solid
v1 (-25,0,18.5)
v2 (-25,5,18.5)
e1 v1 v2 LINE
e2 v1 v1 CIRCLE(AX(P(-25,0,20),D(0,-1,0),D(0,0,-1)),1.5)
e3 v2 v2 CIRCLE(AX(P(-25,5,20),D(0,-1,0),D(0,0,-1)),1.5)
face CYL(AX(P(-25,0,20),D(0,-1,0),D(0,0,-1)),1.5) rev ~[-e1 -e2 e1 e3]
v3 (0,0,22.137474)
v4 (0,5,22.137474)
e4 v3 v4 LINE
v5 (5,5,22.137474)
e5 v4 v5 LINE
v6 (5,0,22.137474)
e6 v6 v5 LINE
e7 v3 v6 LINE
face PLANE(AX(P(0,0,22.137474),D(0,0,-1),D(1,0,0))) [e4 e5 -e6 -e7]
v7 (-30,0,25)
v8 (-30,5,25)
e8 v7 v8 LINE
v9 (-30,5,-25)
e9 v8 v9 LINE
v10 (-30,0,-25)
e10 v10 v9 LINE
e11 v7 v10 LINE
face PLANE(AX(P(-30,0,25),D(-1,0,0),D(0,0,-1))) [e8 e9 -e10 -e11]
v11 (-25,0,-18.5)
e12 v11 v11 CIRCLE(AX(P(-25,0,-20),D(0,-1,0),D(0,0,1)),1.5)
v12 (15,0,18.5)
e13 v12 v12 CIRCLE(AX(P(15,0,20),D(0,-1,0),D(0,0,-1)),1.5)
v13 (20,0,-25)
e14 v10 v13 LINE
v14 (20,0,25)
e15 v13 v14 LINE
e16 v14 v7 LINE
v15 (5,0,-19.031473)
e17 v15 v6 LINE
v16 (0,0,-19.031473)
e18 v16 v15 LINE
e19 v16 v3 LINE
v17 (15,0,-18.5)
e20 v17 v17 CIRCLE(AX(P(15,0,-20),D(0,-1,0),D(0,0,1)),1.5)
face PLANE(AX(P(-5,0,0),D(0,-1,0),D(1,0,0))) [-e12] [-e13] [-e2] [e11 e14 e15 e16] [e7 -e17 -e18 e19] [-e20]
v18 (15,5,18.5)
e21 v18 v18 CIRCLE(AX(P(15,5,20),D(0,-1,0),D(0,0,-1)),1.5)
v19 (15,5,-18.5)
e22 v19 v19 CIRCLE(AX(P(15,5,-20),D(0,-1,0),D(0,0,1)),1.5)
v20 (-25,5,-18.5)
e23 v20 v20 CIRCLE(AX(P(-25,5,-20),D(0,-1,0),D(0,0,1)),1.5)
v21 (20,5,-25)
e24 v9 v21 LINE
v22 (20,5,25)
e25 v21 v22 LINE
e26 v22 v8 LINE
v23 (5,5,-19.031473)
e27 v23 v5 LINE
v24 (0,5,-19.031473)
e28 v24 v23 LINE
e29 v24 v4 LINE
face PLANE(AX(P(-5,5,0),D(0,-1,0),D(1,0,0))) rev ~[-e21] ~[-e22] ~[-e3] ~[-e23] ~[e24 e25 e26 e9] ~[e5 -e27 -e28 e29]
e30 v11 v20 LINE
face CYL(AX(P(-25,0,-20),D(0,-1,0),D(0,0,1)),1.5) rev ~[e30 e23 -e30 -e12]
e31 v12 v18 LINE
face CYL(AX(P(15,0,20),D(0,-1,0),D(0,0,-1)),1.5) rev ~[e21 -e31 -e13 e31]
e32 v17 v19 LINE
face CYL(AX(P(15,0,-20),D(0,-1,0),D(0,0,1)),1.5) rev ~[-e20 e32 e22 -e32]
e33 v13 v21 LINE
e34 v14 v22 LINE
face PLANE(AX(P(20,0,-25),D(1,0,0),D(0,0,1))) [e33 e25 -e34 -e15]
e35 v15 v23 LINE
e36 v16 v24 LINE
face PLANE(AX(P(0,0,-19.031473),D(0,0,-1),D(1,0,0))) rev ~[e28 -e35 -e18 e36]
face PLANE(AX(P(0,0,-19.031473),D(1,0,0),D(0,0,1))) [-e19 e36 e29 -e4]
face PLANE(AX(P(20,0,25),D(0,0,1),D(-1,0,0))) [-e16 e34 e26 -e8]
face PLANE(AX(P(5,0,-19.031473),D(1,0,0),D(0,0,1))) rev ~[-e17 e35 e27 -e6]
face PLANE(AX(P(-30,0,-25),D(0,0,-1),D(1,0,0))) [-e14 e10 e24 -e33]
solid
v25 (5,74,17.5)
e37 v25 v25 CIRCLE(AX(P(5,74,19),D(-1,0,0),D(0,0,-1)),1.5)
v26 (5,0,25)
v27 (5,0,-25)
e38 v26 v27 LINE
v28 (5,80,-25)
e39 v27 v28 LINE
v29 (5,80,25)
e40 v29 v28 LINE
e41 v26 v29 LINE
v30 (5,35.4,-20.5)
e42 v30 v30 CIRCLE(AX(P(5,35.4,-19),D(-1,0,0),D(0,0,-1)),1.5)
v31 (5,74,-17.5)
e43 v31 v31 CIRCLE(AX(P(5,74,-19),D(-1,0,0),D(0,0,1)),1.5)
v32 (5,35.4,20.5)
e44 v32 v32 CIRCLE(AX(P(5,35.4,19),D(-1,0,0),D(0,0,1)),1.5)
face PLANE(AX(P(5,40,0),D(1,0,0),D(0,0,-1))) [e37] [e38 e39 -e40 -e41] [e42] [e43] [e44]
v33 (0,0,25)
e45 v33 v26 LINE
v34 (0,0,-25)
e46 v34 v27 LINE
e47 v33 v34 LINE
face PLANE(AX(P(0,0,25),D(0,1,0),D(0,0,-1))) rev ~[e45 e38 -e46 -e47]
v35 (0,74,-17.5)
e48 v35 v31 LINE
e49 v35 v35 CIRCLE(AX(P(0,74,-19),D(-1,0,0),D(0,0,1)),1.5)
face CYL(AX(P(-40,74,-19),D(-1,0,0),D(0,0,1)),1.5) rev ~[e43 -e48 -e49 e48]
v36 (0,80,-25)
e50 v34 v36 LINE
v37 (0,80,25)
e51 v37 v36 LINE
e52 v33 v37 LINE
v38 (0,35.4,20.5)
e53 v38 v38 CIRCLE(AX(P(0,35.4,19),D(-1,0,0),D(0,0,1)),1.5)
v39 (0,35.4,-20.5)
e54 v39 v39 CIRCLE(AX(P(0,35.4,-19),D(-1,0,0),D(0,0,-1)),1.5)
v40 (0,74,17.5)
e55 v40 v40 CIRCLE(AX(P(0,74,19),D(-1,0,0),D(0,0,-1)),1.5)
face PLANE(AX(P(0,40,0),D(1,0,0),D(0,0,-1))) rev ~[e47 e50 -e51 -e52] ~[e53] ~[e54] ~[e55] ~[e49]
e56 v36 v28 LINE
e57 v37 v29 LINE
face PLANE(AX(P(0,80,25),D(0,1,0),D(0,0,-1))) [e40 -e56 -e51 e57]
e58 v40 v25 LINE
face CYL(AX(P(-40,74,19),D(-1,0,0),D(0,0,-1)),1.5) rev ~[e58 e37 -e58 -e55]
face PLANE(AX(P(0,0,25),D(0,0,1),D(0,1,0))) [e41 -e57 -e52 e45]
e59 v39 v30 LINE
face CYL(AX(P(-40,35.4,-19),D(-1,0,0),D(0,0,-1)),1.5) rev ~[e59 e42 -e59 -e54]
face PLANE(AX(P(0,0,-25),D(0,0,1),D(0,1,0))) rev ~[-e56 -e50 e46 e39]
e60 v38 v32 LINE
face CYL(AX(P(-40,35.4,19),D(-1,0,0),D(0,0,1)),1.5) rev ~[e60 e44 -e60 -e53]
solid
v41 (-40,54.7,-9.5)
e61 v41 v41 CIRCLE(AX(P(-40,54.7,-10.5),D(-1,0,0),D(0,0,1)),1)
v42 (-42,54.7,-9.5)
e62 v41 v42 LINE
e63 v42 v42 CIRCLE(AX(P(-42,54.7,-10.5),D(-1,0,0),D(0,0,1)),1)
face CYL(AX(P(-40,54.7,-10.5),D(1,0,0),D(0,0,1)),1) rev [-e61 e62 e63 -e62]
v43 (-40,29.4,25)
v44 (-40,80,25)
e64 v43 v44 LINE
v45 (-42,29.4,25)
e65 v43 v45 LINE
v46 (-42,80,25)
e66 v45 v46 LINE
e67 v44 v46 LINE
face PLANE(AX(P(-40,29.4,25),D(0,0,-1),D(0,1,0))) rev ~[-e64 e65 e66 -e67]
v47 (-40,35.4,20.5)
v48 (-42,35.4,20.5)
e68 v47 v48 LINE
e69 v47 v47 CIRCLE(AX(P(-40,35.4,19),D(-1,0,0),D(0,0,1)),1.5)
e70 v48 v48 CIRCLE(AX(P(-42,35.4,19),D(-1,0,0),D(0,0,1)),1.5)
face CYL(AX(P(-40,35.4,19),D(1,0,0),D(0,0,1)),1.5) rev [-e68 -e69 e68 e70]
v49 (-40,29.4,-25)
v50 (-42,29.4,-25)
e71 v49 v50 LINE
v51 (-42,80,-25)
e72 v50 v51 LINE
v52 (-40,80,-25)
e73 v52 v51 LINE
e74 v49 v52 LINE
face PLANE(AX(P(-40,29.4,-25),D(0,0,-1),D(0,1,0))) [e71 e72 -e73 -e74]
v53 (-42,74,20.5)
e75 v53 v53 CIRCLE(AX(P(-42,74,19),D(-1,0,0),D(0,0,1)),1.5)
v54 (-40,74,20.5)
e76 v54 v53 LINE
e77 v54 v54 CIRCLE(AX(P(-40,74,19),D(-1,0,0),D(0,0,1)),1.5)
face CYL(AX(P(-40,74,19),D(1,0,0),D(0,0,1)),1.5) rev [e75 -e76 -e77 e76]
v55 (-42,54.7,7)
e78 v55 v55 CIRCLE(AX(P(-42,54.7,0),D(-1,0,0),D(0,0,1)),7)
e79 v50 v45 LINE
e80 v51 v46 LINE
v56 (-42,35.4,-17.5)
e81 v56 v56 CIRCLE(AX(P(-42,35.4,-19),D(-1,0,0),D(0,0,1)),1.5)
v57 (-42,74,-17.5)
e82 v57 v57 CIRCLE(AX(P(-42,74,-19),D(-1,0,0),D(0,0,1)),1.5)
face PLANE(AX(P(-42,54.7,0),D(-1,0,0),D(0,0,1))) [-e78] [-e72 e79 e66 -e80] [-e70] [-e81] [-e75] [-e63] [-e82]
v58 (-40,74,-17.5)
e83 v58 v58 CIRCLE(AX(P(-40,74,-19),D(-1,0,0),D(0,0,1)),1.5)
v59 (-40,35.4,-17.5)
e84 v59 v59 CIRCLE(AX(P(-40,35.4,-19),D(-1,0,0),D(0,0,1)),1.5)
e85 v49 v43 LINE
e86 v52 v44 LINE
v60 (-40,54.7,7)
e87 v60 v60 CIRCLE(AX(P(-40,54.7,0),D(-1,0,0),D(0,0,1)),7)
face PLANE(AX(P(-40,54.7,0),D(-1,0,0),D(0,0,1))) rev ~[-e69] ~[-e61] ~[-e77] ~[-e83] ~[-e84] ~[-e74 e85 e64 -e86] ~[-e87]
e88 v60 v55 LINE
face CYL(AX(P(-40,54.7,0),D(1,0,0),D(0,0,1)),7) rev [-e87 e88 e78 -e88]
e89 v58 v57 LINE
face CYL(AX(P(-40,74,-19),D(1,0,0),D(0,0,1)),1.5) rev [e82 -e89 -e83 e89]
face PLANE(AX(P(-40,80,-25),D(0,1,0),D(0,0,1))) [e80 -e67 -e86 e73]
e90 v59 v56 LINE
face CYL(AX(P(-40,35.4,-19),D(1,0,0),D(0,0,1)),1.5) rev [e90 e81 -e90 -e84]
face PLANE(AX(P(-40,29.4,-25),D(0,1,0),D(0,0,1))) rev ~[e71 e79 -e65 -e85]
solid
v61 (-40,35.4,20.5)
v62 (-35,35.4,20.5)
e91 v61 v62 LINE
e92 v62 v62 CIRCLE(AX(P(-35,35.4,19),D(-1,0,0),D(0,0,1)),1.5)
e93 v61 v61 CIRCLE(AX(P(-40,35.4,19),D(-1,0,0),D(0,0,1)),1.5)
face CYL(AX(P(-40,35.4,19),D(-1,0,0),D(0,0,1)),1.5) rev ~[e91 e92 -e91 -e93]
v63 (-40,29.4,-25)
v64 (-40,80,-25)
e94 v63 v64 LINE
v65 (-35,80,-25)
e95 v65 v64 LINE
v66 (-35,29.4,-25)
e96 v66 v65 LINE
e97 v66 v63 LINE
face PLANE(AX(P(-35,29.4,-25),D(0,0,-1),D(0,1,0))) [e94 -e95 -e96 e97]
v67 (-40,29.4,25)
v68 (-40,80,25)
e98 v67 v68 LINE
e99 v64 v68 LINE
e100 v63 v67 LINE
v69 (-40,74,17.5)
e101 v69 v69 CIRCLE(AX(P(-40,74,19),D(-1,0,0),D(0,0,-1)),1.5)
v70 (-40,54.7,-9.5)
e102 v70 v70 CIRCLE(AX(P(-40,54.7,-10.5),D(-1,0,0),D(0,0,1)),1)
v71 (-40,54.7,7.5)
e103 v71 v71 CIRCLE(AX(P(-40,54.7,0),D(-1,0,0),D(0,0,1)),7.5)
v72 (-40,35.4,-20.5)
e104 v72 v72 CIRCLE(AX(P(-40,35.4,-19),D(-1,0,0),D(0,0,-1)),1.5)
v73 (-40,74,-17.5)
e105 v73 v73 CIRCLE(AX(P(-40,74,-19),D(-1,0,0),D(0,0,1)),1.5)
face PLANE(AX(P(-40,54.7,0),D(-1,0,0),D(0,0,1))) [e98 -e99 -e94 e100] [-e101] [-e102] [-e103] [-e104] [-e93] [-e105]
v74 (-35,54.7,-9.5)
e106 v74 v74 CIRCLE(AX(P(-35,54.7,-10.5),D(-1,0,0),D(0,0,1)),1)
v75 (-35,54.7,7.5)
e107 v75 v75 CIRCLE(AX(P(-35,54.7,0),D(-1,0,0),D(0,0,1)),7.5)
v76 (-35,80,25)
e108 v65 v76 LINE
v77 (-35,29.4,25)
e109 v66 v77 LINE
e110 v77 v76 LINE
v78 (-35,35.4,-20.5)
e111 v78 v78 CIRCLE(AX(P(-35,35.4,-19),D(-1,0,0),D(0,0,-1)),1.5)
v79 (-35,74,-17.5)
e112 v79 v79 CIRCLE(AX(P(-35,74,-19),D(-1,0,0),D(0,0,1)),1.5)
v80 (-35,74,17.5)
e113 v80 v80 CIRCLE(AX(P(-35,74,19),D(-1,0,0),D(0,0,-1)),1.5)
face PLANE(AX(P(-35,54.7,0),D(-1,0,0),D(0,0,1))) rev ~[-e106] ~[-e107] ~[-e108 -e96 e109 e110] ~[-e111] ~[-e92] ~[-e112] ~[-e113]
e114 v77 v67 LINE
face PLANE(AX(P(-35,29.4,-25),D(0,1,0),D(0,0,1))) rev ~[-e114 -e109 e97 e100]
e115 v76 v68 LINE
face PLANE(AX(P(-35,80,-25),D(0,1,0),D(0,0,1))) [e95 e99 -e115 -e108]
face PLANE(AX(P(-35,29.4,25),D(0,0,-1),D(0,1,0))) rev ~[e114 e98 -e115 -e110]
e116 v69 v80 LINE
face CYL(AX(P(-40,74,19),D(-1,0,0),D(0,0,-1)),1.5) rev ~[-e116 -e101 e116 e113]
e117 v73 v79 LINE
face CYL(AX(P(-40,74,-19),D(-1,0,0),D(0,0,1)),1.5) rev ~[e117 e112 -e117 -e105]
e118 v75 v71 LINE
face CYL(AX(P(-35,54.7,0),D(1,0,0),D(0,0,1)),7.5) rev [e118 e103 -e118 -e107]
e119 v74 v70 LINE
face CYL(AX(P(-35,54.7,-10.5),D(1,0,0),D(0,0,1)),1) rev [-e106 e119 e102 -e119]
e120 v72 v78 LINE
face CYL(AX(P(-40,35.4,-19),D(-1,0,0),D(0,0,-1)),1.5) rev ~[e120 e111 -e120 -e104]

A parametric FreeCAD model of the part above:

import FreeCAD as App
import Part
import Sketcher
from FreeCAD import Vector
Q = App.Units.Quantity


def add_polygon(sketch, points):
    """Adds a closed chain of lines whose ends are joined by coincident constraints."""
    first, n = sketch.GeometryCount, len(points)
    for a, b in zip(points, points[1:] + points[:1]):
        sketch.addGeometry(Part.LineSegment(App.Vector(*a, 0), App.Vector(*b, 0)), False)
    for i in range(n):
        sketch.addConstraint(Sketcher.Constraint("Coincident", first + i, 2, first + (i + 1) % n, 1))

doc = App.newDocument("Part")
body = doc.addObject("PartDesign::Body", "Body")

sketch1 = doc.addObject("Sketcher::SketchObject", "Sketch")
body.addObject(sketch1)
sketch1.AttachmentSupport = (doc.YZ_Plane, [""])
sketch1.MapMode = "FlatFace"
add_polygon(sketch1, [(80, 25), (0, 25), (0, -25), (80, -25)])
sketch1.addConstraint([
    Sketcher.Constraint("Horizontal", 0),
    Sketcher.Constraint("Vertical", 1),
    Sketcher.Constraint("Horizontal", 2),
    Sketcher.Constraint("Vertical", 3),
    Sketcher.Constraint("Symmetric", 0, 2, 1, 2, -1, 1),
    Sketcher.Constraint("DistanceX", 0, 2, 0, 1, Q("80 mm")),
    Sketcher.Constraint("DistanceY", 1, 2, 1, 1, Q("50 mm")),
])
pad1 = doc.addObject("PartDesign::Pad", "Pad")
body.addObject(pad1)
pad1.Profile = sketch1
pad1.Length = 5
body2 = doc.addObject("PartDesign::Body", "Body001")

sketch2 = doc.addObject("Sketcher::SketchObject", "Sketch001")
body2.addObject(sketch2)
sketch2.AttachmentSupport = (doc.getObject("XZ_Plane001"), [""])
sketch2.MapMode = "FlatFace"
add_polygon(sketch2, [(-30, 25), (-30, -25), (20, -25), (20, 25)])
sketch2.addGeometry(Part.Circle(Vector(-25, -20, 0), Vector(0, 0, 1), 1.5), False)
sketch2.addGeometry(Part.Circle(Vector(15, -20, 0), Vector(0, 0, 1), 1.5), False)
sketch2.addGeometry(Part.Circle(Vector(-25, 20, 0), Vector(0, 0, 1), 1.5), False)
add_polygon(sketch2, [(5, -19), (0, -19), (0, 22.1), (5, 22.1)])
sketch2.addGeometry(Part.Circle(Vector(15, 20, 0), Vector(0, 0, 1), 1.5), False)
sketch2.addConstraint([
    Sketcher.Constraint("Vertical", 0),
    Sketcher.Constraint("Horizontal", 1),
    Sketcher.Constraint("Vertical", 2),
    Sketcher.Constraint("Horizontal", 3),
    Sketcher.Constraint("Horizontal", 7),
    Sketcher.Constraint("Vertical", 8),
    Sketcher.Constraint("Horizontal", 9),
    Sketcher.Constraint("Vertical", 10),
    Sketcher.Constraint("Equal", 4, 5),
    Sketcher.Constraint("Equal", 5, 6),
    Sketcher.Constraint("Equal", 6, 11),
    Sketcher.Constraint("Symmetric", 4, 3, 6, 3, -1),
    Sketcher.Constraint("Symmetric", 5, 3, 11, 3, -1),
    Sketcher.Constraint("PointOnObject", 7, 2, -2),
    Sketcher.Constraint("Horizontal", 4, 3, 5, 3),
    Sketcher.Constraint("Equal", 3, 0),
    Sketcher.Constraint("Diameter", 4, Q("3 mm")),
    Sketcher.Constraint("DistanceX", 1, 1, 1, 2, Q("50 mm")),
    Sketcher.Constraint("DistanceX", 7, 2, 7, 1, Q("5 mm")),
    Sketcher.Constraint("DistanceX", 4, 3, -1, 1, Q("25 mm")),
    Sketcher.Constraint("DistanceY", 4, 3, -1, 1, Q("20 mm")),
    Sketcher.Constraint("DistanceX", -1, 1, 5, 3, Q("15 mm")),
    Sketcher.Constraint("DistanceX", 0, 2, -1, 1, Q("30 mm")),
    Sketcher.Constraint("DistanceY", 0, 2, -1, 1, Q("25 mm")),
    Sketcher.Constraint("DistanceY", 8, 1, 8, 2, Q("41.168948 mm")),
    Sketcher.Constraint("DistanceY", 7, 2, -1, 1, Q("19.031473 mm")),
])
pad2 = doc.addObject("PartDesign::Pad", "Pad001")
body2.addObject(pad2)
pad2.Profile = sketch2
pad2.Length = 5
pad2.Reversed = True
body3 = doc.addObject("PartDesign::Body", "Body002")

sketch3 = doc.addObject("Sketcher::SketchObject", "Sketch002")
body3.addObject(sketch3)
sketch3.AttachmentSupport = (doc.getObject("YZ_Plane002"), [""])
sketch3.MapMode = "FlatFace"
sketch3.AttachmentOffset = App.Placement(Vector(0, 0, -35), App.Rotation())
add_polygon(sketch3, [(80, -25), (29.4, -25), (29.4, 25), (80, 25)])
sketch3.addGeometry(Part.Circle(Vector(54.7, -10.5, 0), Vector(0, 0, 1), 1), False)
sketch3.addGeometry(Part.Circle(Vector(54.7, 0, 0), Vector(0, 0, 1), 7.5), False)
sketch3.addConstraint([
    Sketcher.Constraint("Horizontal", 0),
    Sketcher.Constraint("Vertical", 1),
    Sketcher.Constraint("Horizontal", 2),
    Sketcher.Constraint("Vertical", 3),
    Sketcher.Constraint("PointOnObject", 5, 3, -1),
    Sketcher.Constraint("Vertical", 4, 3, 5, 3),
    Sketcher.Constraint("Diameter", 4, Q("2 mm")),
    Sketcher.Constraint("Diameter", 5, Q("15 mm")),
    Sketcher.Constraint("DistanceY", 1, 1, 1, 2, Q("50 mm")),
    Sketcher.Constraint("DistanceX", 0, 2, 0, 1, Q("50.6 mm")),
    Sketcher.Constraint("DistanceY", 0, 2, -1, 1, Q("25 mm")),
    Sketcher.Constraint("DistanceX", -1, 1, 2, 2, Q("80 mm")),
    Sketcher.Constraint("DistanceX", -1, 1, 4, 3, Q("54.7 mm")),
    Sketcher.Constraint("DistanceY", 4, 3, -1, 1, Q("10.5 mm")),
])
pad3 = doc.addObject("PartDesign::Pad", "Pad002")
body3.addObject(pad3)
pad3.Profile = sketch3
pad3.Length = 5
pad3.Reversed = True
body4 = doc.addObject("PartDesign::Body", "Body003")
body4.AllowCompound = True

sketch4 = doc.addObject("Sketcher::SketchObject", "Sketch003")
body4.addObject(sketch4)
sketch4.AttachmentSupport = (doc.getObject("YZ_Plane003"), [""])
sketch4.MapMode = "FlatFace"
sketch4.AttachmentOffset = App.Placement(Vector(0, 0, -40), App.Rotation())
sketch4.addGeometry([
    Part.Circle(Vector(74, -19, 0), Vector(0, 0, 1), 1.5),
    Part.Circle(Vector(74, 19, 0), Vector(0, 0, 1), 1.5),
    Part.Circle(Vector(35.4, 19, 0), Vector(0, 0, 1), 1.5),
    Part.Circle(Vector(35.4, -19, 0), Vector(0, 0, 1), 1.5),
], False)
sketch4.addConstraint([
    Sketcher.Constraint("Equal", 0, 1),
    Sketcher.Constraint("Equal", 1, 2),
    Sketcher.Constraint("Equal", 2, 3),
    Sketcher.Constraint("Symmetric", 0, 3, 1, 3, -1),
    Sketcher.Constraint("Symmetric", 2, 3, 3, 3, -1),
    Sketcher.Constraint("Horizontal", 1, 3, 2, 3),
    Sketcher.Constraint("Diameter", 0, Q("3 mm")),
    Sketcher.Constraint("DistanceX", -1, 1, 0, 3, Q("74 mm")),
    Sketcher.Constraint("DistanceY", 0, 3, -1, 1, Q("19 mm")),
    Sketcher.Constraint("DistanceX", -1, 1, 2, 3, Q("35.4 mm")),
])
pad4 = doc.addObject("PartDesign::Pad", "Pad003")
body4.addObject(pad4)
pad4.Profile = sketch4
pad4.Length = 104.077641
doc.recompute()

body5 = doc.addObject("PartDesign::Body", "Body004")
body5.BaseFeature = body4
boolean = doc.addObject("PartDesign::Boolean", "Boolean")
body.addObject(boolean)
boolean.Type = "Cut"
boolean.addObjects([body5])
doc.recompute()

boolean2 = doc.addObject("PartDesign::Boolean", "Boolean001")
body3.addObject(boolean2)
boolean2.Type = "Cut"
boolean2.addObjects([body4])
body6 = doc.addObject("PartDesign::Body", "Body005")

sketch5 = doc.addObject("Sketcher::SketchObject", "Sketch004")
body6.addObject(sketch5)
sketch5.AttachmentSupport = (doc.getObject("YZ_Plane005"), [""])
sketch5.MapMode = "FlatFace"
sketch5.AttachmentOffset = App.Placement(Vector(0, 0, -40), App.Rotation())
add_polygon(sketch5, [(80, -25), (29.4, -25), (29.4, 25), (80, 25)])
sketch5.addGeometry(Part.Circle(Vector(35.4, -19, 0), Vector(0, 0, 1), 1.5), False)
sketch5.addGeometry(Part.Circle(Vector(35.4, 19, 0), Vector(0, 0, 1), 1.5), False)
sketch5.addGeometry(Part.Circle(Vector(54.7, -10.5, 0), Vector(0, 0, 1), 1), False)
sketch5.addGeometry(Part.Circle(Vector(74, -19, 0), Vector(0, 0, 1), 1.5), False)
sketch5.addGeometry(Part.Circle(Vector(54.7, 0, 0), Vector(0, 0, 1), 7), False)
sketch5.addGeometry(Part.Circle(Vector(74, 19, 0), Vector(0, 0, 1), 1.5), False)
sketch5.addConstraint([
    Sketcher.Constraint("Horizontal", 0),
    Sketcher.Constraint("Vertical", 1),
    Sketcher.Constraint("Horizontal", 2),
    Sketcher.Constraint("Vertical", 3),
    Sketcher.Constraint("Equal", 4, 5),
    Sketcher.Constraint("Equal", 5, 7),
    Sketcher.Constraint("Equal", 7, 9),
    Sketcher.Constraint("Symmetric", 4, 3, 5, 3, -1),
    Sketcher.Constraint("Symmetric", 7, 3, 9, 3, -1),
    Sketcher.Constraint("PointOnObject", 8, 3, -1),
    Sketcher.Constraint("Horizontal", 4, 3, 7, 3),
    Sketcher.Constraint("Vertical", 6, 3, 8, 3),
    Sketcher.Constraint("Diameter", 4, Q("3 mm")),
    Sketcher.Constraint("Diameter", 6, Q("2 mm")),
    Sketcher.Constraint("Diameter", 8, Q("14 mm")),
    Sketcher.Constraint("DistanceY", 1, 1, 1, 2, Q("50 mm")),
    Sketcher.Constraint("DistanceX", 0, 2, 0, 1, Q("50.6 mm")),
    Sketcher.Constraint("DistanceY", 4, 3, -1, 1, Q("19 mm")),
    Sketcher.Constraint("DistanceX", -1, 1, 7, 3, Q("74 mm")),
    Sketcher.Constraint("DistanceY", 0, 2, -1, 1, Q("25 mm")),
    Sketcher.Constraint("DistanceX", -1, 1, 2, 2, Q("80 mm")),
    Sketcher.Constraint("DistanceX", 0, 2, 4, 3, Q("6 mm")),
    Sketcher.Constraint("DistanceX", -1, 1, 6, 3, Q("54.7 mm")),
    Sketcher.Constraint("DistanceY", 6, 3, -1, 1, Q("10.5 mm")),
])
pad5 = doc.addObject("PartDesign::Pad", "Pad004")
body6.addObject(pad5)
pad5.Profile = sketch5
pad5.Length = 2
pad5.Reversed = True

doc.recompute()
